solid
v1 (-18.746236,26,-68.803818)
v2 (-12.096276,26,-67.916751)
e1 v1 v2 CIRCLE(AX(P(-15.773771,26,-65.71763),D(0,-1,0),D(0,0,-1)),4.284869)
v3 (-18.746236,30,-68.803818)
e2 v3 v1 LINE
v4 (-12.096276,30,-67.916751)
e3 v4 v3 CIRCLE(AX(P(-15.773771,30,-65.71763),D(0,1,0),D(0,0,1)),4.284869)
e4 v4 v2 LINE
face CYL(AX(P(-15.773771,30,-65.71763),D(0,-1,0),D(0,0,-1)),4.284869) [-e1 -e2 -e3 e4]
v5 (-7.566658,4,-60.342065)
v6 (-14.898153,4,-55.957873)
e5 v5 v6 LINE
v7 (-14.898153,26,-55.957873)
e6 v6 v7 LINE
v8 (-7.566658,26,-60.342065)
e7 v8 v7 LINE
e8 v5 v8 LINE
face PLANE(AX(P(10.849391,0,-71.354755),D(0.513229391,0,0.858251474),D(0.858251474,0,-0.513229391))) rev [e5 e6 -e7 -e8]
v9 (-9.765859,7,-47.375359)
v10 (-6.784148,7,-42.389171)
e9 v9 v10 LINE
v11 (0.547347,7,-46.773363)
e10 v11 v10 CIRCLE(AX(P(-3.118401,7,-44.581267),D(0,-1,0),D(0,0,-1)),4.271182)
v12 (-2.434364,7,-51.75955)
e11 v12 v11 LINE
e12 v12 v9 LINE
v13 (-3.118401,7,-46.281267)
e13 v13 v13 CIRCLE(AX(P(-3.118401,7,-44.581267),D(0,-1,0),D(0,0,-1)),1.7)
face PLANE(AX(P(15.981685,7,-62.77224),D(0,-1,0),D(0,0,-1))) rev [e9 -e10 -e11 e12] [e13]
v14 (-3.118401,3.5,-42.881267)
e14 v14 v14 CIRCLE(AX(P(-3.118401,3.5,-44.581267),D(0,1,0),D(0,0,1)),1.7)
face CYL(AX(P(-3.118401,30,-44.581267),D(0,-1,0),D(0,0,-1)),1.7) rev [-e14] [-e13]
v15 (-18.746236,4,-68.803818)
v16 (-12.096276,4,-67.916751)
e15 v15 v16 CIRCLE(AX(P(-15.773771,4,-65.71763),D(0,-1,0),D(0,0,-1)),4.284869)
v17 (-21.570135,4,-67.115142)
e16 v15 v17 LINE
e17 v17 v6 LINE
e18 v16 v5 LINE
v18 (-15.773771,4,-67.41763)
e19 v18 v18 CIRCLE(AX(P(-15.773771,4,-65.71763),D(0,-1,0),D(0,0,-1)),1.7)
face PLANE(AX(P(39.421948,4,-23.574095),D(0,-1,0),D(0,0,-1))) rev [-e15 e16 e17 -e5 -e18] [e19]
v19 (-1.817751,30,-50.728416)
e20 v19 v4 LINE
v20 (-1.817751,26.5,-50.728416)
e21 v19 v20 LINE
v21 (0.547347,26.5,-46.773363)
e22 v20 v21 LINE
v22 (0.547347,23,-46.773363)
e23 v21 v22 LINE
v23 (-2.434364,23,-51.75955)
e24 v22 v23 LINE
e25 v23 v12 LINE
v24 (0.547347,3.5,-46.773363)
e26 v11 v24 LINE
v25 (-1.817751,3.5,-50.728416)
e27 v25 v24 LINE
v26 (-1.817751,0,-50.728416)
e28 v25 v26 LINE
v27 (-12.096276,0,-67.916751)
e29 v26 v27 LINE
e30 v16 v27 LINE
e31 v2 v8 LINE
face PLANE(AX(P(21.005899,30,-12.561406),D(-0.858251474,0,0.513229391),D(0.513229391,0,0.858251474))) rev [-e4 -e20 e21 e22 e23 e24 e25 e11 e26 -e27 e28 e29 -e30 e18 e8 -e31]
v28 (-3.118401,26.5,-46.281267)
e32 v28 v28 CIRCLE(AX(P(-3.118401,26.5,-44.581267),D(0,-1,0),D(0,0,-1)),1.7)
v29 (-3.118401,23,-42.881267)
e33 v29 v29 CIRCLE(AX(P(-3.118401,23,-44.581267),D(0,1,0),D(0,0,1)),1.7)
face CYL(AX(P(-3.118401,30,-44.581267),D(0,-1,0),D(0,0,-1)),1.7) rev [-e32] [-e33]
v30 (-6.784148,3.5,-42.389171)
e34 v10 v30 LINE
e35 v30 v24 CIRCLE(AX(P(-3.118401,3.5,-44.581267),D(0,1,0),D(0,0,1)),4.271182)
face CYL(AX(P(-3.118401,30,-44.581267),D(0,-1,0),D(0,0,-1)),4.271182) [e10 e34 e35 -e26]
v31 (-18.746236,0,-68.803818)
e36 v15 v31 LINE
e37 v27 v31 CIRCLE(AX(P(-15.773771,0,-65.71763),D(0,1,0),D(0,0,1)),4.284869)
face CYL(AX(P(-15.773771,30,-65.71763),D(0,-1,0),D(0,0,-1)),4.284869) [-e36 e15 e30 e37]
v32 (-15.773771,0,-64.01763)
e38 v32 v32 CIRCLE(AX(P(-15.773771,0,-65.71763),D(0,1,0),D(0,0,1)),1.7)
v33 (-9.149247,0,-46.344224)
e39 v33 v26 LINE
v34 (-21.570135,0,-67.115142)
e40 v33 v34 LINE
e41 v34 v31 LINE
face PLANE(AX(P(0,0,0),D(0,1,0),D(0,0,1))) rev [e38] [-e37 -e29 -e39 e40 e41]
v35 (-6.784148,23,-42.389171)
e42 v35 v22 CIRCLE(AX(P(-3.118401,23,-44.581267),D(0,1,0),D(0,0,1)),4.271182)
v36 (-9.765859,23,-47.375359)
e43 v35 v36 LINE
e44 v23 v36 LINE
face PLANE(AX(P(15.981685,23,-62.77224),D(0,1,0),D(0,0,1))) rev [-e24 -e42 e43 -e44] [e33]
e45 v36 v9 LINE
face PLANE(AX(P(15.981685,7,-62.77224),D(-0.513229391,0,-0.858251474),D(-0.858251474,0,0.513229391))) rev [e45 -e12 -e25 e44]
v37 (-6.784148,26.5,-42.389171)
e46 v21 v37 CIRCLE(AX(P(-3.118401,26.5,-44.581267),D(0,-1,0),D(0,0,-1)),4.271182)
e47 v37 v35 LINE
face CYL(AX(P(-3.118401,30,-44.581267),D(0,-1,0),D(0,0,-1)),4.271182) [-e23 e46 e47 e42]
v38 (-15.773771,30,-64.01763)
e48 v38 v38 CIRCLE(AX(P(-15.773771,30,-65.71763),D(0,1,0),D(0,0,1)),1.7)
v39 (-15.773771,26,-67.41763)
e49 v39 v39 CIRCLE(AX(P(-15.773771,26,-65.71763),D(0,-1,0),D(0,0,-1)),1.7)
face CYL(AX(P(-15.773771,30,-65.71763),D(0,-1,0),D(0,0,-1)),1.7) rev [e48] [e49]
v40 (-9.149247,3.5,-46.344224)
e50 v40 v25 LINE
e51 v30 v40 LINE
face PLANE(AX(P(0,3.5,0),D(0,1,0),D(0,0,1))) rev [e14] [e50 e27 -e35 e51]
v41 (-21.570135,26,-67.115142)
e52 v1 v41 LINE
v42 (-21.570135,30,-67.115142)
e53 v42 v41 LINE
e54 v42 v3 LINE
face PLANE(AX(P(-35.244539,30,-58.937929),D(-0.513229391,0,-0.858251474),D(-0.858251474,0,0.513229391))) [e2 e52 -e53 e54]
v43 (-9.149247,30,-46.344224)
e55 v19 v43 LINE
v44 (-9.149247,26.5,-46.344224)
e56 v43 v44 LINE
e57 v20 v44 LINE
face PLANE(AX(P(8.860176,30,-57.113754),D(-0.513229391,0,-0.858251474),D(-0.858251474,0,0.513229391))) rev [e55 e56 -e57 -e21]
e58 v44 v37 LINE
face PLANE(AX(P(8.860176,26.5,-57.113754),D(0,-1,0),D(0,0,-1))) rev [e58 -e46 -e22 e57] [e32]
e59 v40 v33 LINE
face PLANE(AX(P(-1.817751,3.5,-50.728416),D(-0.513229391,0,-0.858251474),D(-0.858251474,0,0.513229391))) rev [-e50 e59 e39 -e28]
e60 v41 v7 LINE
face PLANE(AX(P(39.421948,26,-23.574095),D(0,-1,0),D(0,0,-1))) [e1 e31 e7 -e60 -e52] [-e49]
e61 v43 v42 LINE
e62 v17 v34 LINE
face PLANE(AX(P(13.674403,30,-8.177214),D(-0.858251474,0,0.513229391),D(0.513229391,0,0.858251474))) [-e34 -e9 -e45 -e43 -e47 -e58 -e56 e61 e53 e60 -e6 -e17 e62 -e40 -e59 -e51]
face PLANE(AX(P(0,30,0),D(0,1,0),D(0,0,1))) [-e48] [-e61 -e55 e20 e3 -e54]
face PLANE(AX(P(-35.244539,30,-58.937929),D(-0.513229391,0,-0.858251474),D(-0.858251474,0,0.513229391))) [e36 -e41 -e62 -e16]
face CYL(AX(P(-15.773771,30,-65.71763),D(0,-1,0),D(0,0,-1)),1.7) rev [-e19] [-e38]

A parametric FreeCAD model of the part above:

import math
import FreeCAD as App
import Part
import Sketcher
from FreeCAD import Vector


def add_polygon(sketch, points):
    """Adds a closed chain of lines whose ends are joined by coincident constraints."""
    first, n = sketch.GeometryCount, len(points)
    for a, b in zip(points, points[1:] + points[:1]):
        sketch.addGeometry(Part.LineSegment(App.Vector(*a, 0), App.Vector(*b, 0)), False)
    for i in range(n):
        sketch.addConstraint(Sketcher.Constraint("Coincident", first + i, 2, first + (i + 1) % n, 1))

doc = App.newDocument("Part")
params = doc.addObject("Spreadsheet::Sheet", "Params")
for row, (alias, value) in enumerate([
    ("sketch1_diameter", "3.4 mm"),
    ("pad1_length", "30 mm"),
    ("sketch2_height", "22 mm"),
    ("pocket1_length", "30 mm"),
    ("sketch3_height", "16 mm"),
    ("pocket2_length", "30 mm"),
    ("pocket3_length", "3.5 mm"),
], start=1):
    params.set(f"A{row}", alias)
    params.set(f"B{row}", "=" + value)
    params.setAlias(f"B{row}", alias)

body = doc.addObject("PartDesign::Body", "Body")

# Sketch on XZ plane
sketch1 = body.newObject("Sketcher::SketchObject", "Sketch")
sketch1.AttachmentSupport = (doc.getObject("XZ_Plane"), [""])
sketch1.MapMode = "FlatFace"
sketch1.addGeometry(Part.LineSegment(Vector(0.5, -46.8, 0), Vector(-12.1, -67.9, 0)), False)
sketch1.addGeometry(Part.ArcOfCircle(Part.Circle(Vector(-15.8, -65.7, 0), Vector(0, 0, 1), 4.3), math.radians(-134), math.radians(-31)), False)
sketch1.addGeometry(Part.LineSegment(Vector(-18.7, -68.8, 0), Vector(-21.6, -67.1, 0)), False)
sketch1.addGeometry(Part.LineSegment(Vector(-21.6, -67.1, 0), Vector(-6.8, -42.4, 0)), False)
sketch1.addGeometry(Part.ArcOfCircle(Part.Circle(Vector(-3.1, -44.6, 0), Vector(0, 0, 1), 4.3), math.radians(-31), math.radians(149)), False)
sketch1.addGeometry(Part.Circle(Vector(-3.1, -44.6, 0), Vector(0, 0, 1), 1.7), False)
sketch1.addGeometry(Part.Circle(Vector(-15.8, -65.7, 0), Vector(0, 0, 1), 1.7), False)
sketch1.addConstraint(Sketcher.Constraint("Tangent", 0, 2, 1, 2))
sketch1.addConstraint(Sketcher.Constraint("Coincident", 1, 1, 2, 1))
sketch1.addConstraint(Sketcher.Constraint("Coincident", 2, 2, 3, 1))
sketch1.addConstraint(Sketcher.Constraint("Tangent", 3, 2, 4, 2))
sketch1.addConstraint(Sketcher.Constraint("Tangent", 4, 1, 0, 1))
sketch1.addConstraint(Sketcher.Constraint("Coincident", 5, 3, 4, 3))
sketch1.addConstraint(Sketcher.Constraint("Coincident", 6, 3, 1, 3))
sketch1.addConstraint(Sketcher.Constraint("Equal", 5, 6))
sketch1.addConstraint(Sketcher.Constraint("Perpendicular", 0, 2))
sketch1.addConstraint(Sketcher.Constraint("Perpendicular", 2, 3))
sketch1.addConstraint(Sketcher.Constraint("Diameter", 5, 3.4))
sketch1.addConstraint(Sketcher.Constraint("Radius", 1, 4.284869))
sketch1.addConstraint(Sketcher.Constraint("Radius", 4, 4.271182))
sketch1.addConstraint(Sketcher.Constraint("DistanceX", 4, 3, -1, 1, 3.118401))
sketch1.addConstraint(Sketcher.Constraint("DistanceX", 2, 2, 1, 1, 2.8239))
sketch1.addConstraint(Sketcher.Constraint("DistanceX", 1, 3, -1, 1, 15.773771))
sketch1.addConstraint(Sketcher.Constraint("DistanceY", 1, 3, -1, 1, 65.71763))
sketch1.addConstraint(Sketcher.Constraint("DistanceY", 0, 2, -1, 1, 67.916751))
sketch1.setExpression("Constraints[10]", "Params.sketch1_diameter")
pad1 = body.newObject("PartDesign::Pad", "Pad")
pad1.Profile = sketch1
pad1.setExpression("Length", "Params.pad1_length")
pad1.Reversed = True

# Sketch on an angled plane
sketch2 = body.newObject("Sketcher::SketchObject", "Sketch001")
sketch2.Placement = App.Placement(Vector(13.674403, 0, -8.177214), App.Rotation(Vector(0.513229391, 0, 0.858251474), Vector(0, 1, 0), Vector(-0.858251474, 0, 0.513229391), "ZXY"))
add_polygon(sketch2, [(-56, 4), (-56, 26), (-76, 26), (-76, 4)])  # lines 0-3
sketch2.addConstraint(Sketcher.Constraint("Vertical", 0))
sketch2.addConstraint(Sketcher.Constraint("Horizontal", 1))
sketch2.addConstraint(Sketcher.Constraint("Vertical", 2))
sketch2.addConstraint(Sketcher.Constraint("Horizontal", 3))
sketch2.addConstraint(Sketcher.Constraint("DistanceY", 0, 1, 0, 2, 22.0))
sketch2.addConstraint(Sketcher.Constraint("DistanceY", -1, 1, 0, 2, 26.0))
sketch2.addConstraint(Sketcher.Constraint("DistanceX", 1, 2, 1, 1, 20.133538))
sketch2.addConstraint(Sketcher.Constraint("DistanceX", 0, 2, -1, 1, 55.672097))
sketch2.setExpression("Constraints[8]", "Params.sketch2_height")
pocket1 = body.newObject("PartDesign::Pocket", "Pocket")
pocket1.Profile = sketch2
pocket1.setExpression("Length", "Params.pocket1_length")

# Sketch on an angled plane
sketch3 = body.newObject("Sketcher::SketchObject", "Sketch002")
sketch3.Placement = App.Placement(Vector(13.674403, 0, -8.177214), App.Rotation(Vector(0.513229391, 0, 0.858251474), Vector(0, 1, 0), Vector(-0.858251474, 0, 0.513229391), "ZXY"))
add_polygon(sketch3, [(-46, 23), (-46, 7), (-29, 7), (-29, 23)])  # lines 0-3
sketch3.addConstraint(Sketcher.Constraint("Vertical", 0))
sketch3.addConstraint(Sketcher.Constraint("Horizontal", 1))
sketch3.addConstraint(Sketcher.Constraint("Vertical", 2))
sketch3.addConstraint(Sketcher.Constraint("Horizontal", 3))
sketch3.addConstraint(Sketcher.Constraint("DistanceY", 0, 2, 0, 1, 16.0))
sketch3.addConstraint(Sketcher.Constraint("DistanceY", -1, 1, 0, 2, 7.0))
sketch3.addConstraint(Sketcher.Constraint("DistanceX", 1, 1, 1, 2, 16.393621))
sketch3.addConstraint(Sketcher.Constraint("DistanceX", 0, 2, -1, 1, 45.672097))
sketch3.setExpression("Constraints[8]", "Params.sketch3_height")
pocket2 = body.newObject("PartDesign::Pocket", "Pocket001")
pocket2.Profile = sketch3
pocket2.setExpression("Length", "Params.pocket2_length")

# Sketch on XZ plane
sketch4 = body.newObject("Sketcher::SketchObject", "Sketch003")
sketch4.AttachmentSupport = (doc.getObject("XZ_Plane"), [""])
sketch4.MapMode = "FlatFace"
add_polygon(sketch4, [(-9, -46), (-2, -51), (3, -42), (-4, -38)])  # lines 0-3
sketch4.addConstraint(Sketcher.Constraint("Perpendicular", 0, 1))
sketch4.addConstraint(Sketcher.Constraint("Parallel", 1, 3))
sketch4.addConstraint(Sketcher.Constraint("DistanceX", 0, 2, -1, 1, 1.817751))
sketch4.addConstraint(Sketcher.Constraint("DistanceX", -1, 1, 1, 2, 3.391021))
sketch4.addConstraint(Sketcher.Constraint("DistanceY", 1, 2, -1, 1, 42.01801))
sketch4.addConstraint(Sketcher.Constraint("DistanceX", 2, 2, -1, 1, 4.210618))
sketch4.addConstraint(Sketcher.Constraint("DistanceY", 0, 2, 2, 2, 12.642849))
sketch4.addConstraint(Sketcher.Constraint("DistanceY", 0, 2, 3, 2, 4.384192))
pocket3 = body.newObject("PartDesign::Pocket", "Pocket002")
pocket3.Profile = sketch4
pocket3.setExpression("Length", "Params.pocket3_length")

# Sketch on an angled plane
sketch5 = body.newObject("Sketcher::SketchObject", "Sketch004")
sketch5.Placement = App.Placement(Vector(13.674403, 0, -8.177214), App.Rotation(Vector(0.513229391, 0, 0.858251474), Vector(0, 1, 0), Vector(-0.858251474, 0, 0.513229391), "ZXY"))
add_polygon(sketch5, [(-44.5, 26.5), (-33.4, 26.5), (-33.4, 30.5), (-44.5, 30.5)])  # lines 0-3
sketch5.addConstraint(Sketcher.Constraint("Horizontal", 0))
sketch5.addConstraint(Sketcher.Constraint("Vertical", 1))
sketch5.addConstraint(Sketcher.Constraint("Horizontal", 2))
sketch5.addConstraint(Sketcher.Constraint("Vertical", 3))
sketch5.addConstraint(Sketcher.Constraint("DistanceY", -1, 1, 0, 2, 26.5))
sketch5.addConstraint(Sketcher.Constraint("DistanceX", 0, 1, 0, 2, 11.053978))
sketch5.addConstraint(Sketcher.Constraint("DistanceY", 1, 1, 1, 2, 4.044862))
sketch5.addConstraint(Sketcher.Constraint("DistanceX", 2, 2, -1, 1, 44.470661))
pocket4 = body.newObject("PartDesign::Pocket", "Pocket003")
pocket4.Profile = sketch5
pocket4.Type = "ThroughAll"

doc.recompute()
